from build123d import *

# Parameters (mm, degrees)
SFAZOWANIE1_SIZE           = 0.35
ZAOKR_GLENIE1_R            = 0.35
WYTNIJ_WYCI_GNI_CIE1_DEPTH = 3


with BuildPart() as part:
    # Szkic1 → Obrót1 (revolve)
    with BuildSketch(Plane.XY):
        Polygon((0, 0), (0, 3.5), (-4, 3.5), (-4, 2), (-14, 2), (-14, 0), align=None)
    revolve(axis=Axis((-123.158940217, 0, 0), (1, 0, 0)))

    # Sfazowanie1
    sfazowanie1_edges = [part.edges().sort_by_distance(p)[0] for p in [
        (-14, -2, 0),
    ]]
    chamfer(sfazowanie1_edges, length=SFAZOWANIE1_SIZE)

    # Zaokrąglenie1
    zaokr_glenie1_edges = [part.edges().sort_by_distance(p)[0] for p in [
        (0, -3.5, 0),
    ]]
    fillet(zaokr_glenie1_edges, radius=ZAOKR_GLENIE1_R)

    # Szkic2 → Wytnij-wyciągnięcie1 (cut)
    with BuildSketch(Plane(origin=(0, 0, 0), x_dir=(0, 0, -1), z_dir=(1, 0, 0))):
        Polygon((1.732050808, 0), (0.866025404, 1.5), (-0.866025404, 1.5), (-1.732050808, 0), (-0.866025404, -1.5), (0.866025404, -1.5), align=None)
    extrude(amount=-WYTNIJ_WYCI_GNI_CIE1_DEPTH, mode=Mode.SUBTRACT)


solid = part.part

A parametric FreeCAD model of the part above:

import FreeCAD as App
import Part
import Sketcher
Q = App.Units.Quantity


def edges_at(feature, points):
    """Names of the edges that pass closest to the given points."""
    edges = feature.Shape.Edges
    near = lambda p: min(range(len(edges)), key=lambda i: edges[i].distToShape(Part.Vertex(*p))[0])
    return sorted({f"Edge{near(p) + 1}" for p in points})


def add_polygon(sketch, points):
    """Adds a closed chain of lines whose ends are joined by coincident constraints."""
    first, n = sketch.GeometryCount, len(points)
    for a, b in zip(points, points[1:] + points[:1]):
        sketch.addGeometry(Part.LineSegment(App.Vector(*a, 0), App.Vector(*b, 0)), False)
    for i in range(n):
        sketch.addConstraint(Sketcher.Constraint("Coincident", first + i, 2, first + (i + 1) % n, 1))

doc = App.newDocument("Part")
body = doc.addObject("PartDesign::Body", "Body")

# Sketch on XY plane
sketch1 = doc.addObject("Sketcher::SketchObject", "Sketch")
body.addObject(sketch1)
sketch1.AttachmentSupport = (doc.XY_Plane, [""])
sketch1.MapMode = "FlatFace"
add_polygon(sketch1, [(0, 0), (0, 3.5), (-4, 3.5), (-4, 2), (-14, 2), (-14, 0)])  # lines 0-5
sketch1.addConstraint(Sketcher.Constraint("Vertical", 0))
sketch1.addConstraint(Sketcher.Constraint("Horizontal", 1))
sketch1.addConstraint(Sketcher.Constraint("Vertical", 2))
sketch1.addConstraint(Sketcher.Constraint("Horizontal", 3))
sketch1.addConstraint(Sketcher.Constraint("Vertical", 4))
sketch1.addConstraint(Sketcher.Constraint("Horizontal", 5))
sketch1.addConstraint(Sketcher.Constraint("Coincident", 5, 2, -1, 1))
sketch1.addConstraint(Sketcher.Constraint("DistanceX", 1, 2, 1, 1, 4.0))
sketch1.addConstraint(Sketcher.Constraint("DistanceX", 3, 2, 3, 1, 10.0))
sketch1.addConstraint(Sketcher.Constraint("DistanceY", 4, 2, 4, 1, 2.0))
sketch1.addConstraint(Sketcher.Constraint("DistanceY", 0, 1, 0, 2, 3.5))
revolution = doc.addObject("PartDesign::Revolution", "Revolution")
body.addObject(revolution)
revolution.Profile = sketch1
revolution.ReferenceAxis = (sketch1, ["H_Axis"])
revolution.Angle = 360
doc.recompute()

chamfer = doc.addObject("PartDesign::Chamfer", "Chamfer")
body.addObject(chamfer)
chamfer.Base = (revolution, edges_at(revolution, [(-14, -2, 0)]))
chamfer.Size = 0.35
doc.recompute()

fillet = doc.addObject("PartDesign::Fillet", "Fillet")
body.addObject(fillet)
fillet.Base = (chamfer, edges_at(chamfer, [(0, -3.5, 0)]))
fillet.Radius = 0.35

# Sketch on YZ plane
sketch2 = doc.addObject("Sketcher::SketchObject", "Sketch001")
body.addObject(sketch2)
sketch2.AttachmentSupport = (doc.YZ_Plane, [""])
sketch2.MapMode = "FlatFace"
add_polygon(sketch2, [(0, -1.7), (1.5, -0.9), (1.5, 0.9), (0, 1.7), (-1.5, 0.9), (-1.5, -0.9)])  # lines 0-5
sketch2.addConstraint(Sketcher.Constraint("Vertical", 1))
sketch2.addConstraint(Sketcher.Constraint("Vertical", 4))
sketch2.addConstraint(Sketcher.Constraint("Symmetric", 0, 2, 3, 2, -1, 1))
sketch2.addConstraint(Sketcher.Constraint("Symmetric", 2, 2, 5, 2, -1, 1))
sketch2.addConstraint(Sketcher.Constraint("PointOnObject", 2, 2, -2))
sketch2.addConstraint(Sketcher.Constraint("Parallel", 2, 5))
sketch2.addConstraint(Sketcher.Constraint("Horizontal", 1, 2, 3, 2))
sketch2.addConstraint(Sketcher.Constraint("Angle", 0, Q("30 deg")))
sketch2.addConstraint(Sketcher.Constraint("DistanceX", 3, 2, 1, 2, 3.0))
sketch2.addConstraint(Sketcher.Constraint("DistanceY", 1, 1, 1, 2, 1.732051))
pocket1 = doc.addObject("PartDesign::Pocket", "Pocket")
body.addObject(pocket1)
pocket1.Profile = sketch2
pocket1.Length = 3

doc.recompute()
